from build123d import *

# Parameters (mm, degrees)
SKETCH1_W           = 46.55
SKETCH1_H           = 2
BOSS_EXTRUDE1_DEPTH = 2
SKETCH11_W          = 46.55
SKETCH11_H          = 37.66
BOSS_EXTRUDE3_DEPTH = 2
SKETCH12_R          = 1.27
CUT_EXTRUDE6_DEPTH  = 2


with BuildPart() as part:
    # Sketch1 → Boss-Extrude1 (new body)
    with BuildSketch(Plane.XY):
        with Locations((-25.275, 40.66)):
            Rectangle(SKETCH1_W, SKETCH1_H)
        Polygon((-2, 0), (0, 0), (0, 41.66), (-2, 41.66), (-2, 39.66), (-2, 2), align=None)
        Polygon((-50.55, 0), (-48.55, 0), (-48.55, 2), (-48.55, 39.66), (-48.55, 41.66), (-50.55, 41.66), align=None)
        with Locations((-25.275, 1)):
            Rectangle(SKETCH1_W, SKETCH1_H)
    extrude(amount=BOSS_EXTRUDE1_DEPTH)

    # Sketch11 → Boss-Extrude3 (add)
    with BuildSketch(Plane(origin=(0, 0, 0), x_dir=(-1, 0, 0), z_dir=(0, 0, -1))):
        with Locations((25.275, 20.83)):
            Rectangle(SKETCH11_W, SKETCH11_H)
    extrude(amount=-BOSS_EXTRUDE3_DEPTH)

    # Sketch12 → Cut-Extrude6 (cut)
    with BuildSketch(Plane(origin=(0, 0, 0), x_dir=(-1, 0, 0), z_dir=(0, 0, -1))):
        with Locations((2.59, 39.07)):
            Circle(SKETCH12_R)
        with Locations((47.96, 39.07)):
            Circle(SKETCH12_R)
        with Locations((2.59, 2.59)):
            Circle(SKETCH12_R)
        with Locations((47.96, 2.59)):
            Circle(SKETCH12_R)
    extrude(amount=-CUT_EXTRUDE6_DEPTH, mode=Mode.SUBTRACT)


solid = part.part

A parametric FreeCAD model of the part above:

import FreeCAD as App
import Part
import Sketcher

doc = App.newDocument("Part")
body = doc.addObject("PartDesign::Body", "Body")

# Sketch on XY plane
sketch1 = body.newObject("Sketcher::SketchObject", "Sketch")
sketch1.AttachmentSupport = (doc.getObject("XY_Plane"), [""])
sketch1.MapMode = "FlatFace"
sketch1.addGeometry([
    Part.LineSegment(App.Vector(0, 0, 0), App.Vector(0, 41.66, 0)),  # 0
    Part.LineSegment(App.Vector(0, 41.66, 0), App.Vector(-50.55, 41.66, 0)),  # 1
    Part.LineSegment(App.Vector(-50.55, 41.66, 0), App.Vector(-50.55, 0, 0)),  # 2
    Part.LineSegment(App.Vector(-50.55, 0, 0), App.Vector(0, 0, 0)),  # 3
    Part.LineSegment(App.Vector(-48.55, 39.66, 0), App.Vector(-2, 39.66, 0)),  # 4
    Part.LineSegment(App.Vector(-2, 39.66, 0), App.Vector(-2, 2, 0)),  # 5
    Part.LineSegment(App.Vector(-2, 2, 0), App.Vector(-48.55, 2, 0)),  # 6
    Part.LineSegment(App.Vector(-48.55, 2, 0), App.Vector(-48.55, 39.66, 0)),  # 7
], False)
sketch1.addConstraint([
    Sketcher.Constraint("Coincident", 0, 2, 1, 1),
    Sketcher.Constraint("Coincident", 1, 2, 2, 1),
    Sketcher.Constraint("Coincident", 2, 2, 3, 1),
    Sketcher.Constraint("Coincident", 3, 2, 0, 1),
    Sketcher.Constraint("Coincident", 4, 2, 5, 1),
    Sketcher.Constraint("Coincident", 5, 2, 6, 1),
    Sketcher.Constraint("Coincident", 6, 2, 7, 1),
    Sketcher.Constraint("Coincident", 7, 2, 4, 1),
    Sketcher.Constraint("Vertical", 0),
    Sketcher.Constraint("Horizontal", 1),
    Sketcher.Constraint("Vertical", 2),
    Sketcher.Constraint("Horizontal", 3),
    Sketcher.Constraint("Horizontal", 4),
    Sketcher.Constraint("Vertical", 5),
    Sketcher.Constraint("Horizontal", 6),
    Sketcher.Constraint("Vertical", 7),
    Sketcher.Constraint("Coincident", 3, 2, -1, 1),
    Sketcher.Constraint("DistanceX", 4, 2, -1, 1, 2.0),
    Sketcher.Constraint("DistanceY", -1, 1, 5, 2, 2.0),
    Sketcher.Constraint("DistanceY", 4, 2, 0, 2, 2.0),
    Sketcher.Constraint("DistanceX", 2, 2, 6, 2, 2.0),
    Sketcher.Constraint("DistanceX", 1, 2, 1, 1, 50.55),
    Sketcher.Constraint("DistanceY", 0, 1, 0, 2, 41.66),
])
pad1 = body.newObject("PartDesign::Pad", "Pad")
pad1.Profile = sketch1
pad1.Length = 2

# Sketch on XY plane
sketch2 = body.newObject("Sketcher::SketchObject", "Sketch001")
sketch2.AttachmentSupport = (doc.getObject("XY_Plane"), [""])
sketch2.MapMode = "FlatFace"
sketch2.addGeometry([
    Part.LineSegment(App.Vector(-2, 39.66, 0), App.Vector(-2, 2, 0)),
    Part.LineSegment(App.Vector(-2, 2, 0), App.Vector(-48.55, 2, 0)),
    Part.LineSegment(App.Vector(-48.55, 2, 0), App.Vector(-48.55, 39.66, 0)),
    Part.LineSegment(App.Vector(-48.55, 39.66, 0), App.Vector(-2, 39.66, 0)),
], False)
sketch2.addConstraint([
    Sketcher.Constraint("Coincident", 0, 2, 1, 1),
    Sketcher.Constraint("Coincident", 1, 2, 2, 1),
    Sketcher.Constraint("Coincident", 2, 2, 3, 1),
    Sketcher.Constraint("Coincident", 3, 2, 0, 1),
    Sketcher.Constraint("Vertical", 0),
    Sketcher.Constraint("Horizontal", 1),
    Sketcher.Constraint("Vertical", 2),
    Sketcher.Constraint("Horizontal", 3),
    Sketcher.Constraint("DistanceX", 0, 2, -1, 1, 2.0),
    Sketcher.Constraint("DistanceY", -1, 1, 0, 2, 2.0),
    Sketcher.Constraint("DistanceX", 1, 2, 1, 1, 46.55),
    Sketcher.Constraint("DistanceY", 0, 2, 0, 1, 37.66),
])
pad2 = body.newObject("PartDesign::Pad", "Pad001")
pad2.Profile = sketch2
pad2.Length = 2

# Sketch on XY plane
sketch3 = body.newObject("Sketcher::SketchObject", "Sketch002")
sketch3.AttachmentSupport = (doc.getObject("XY_Plane"), [""])
sketch3.MapMode = "FlatFace"
sketch3.addGeometry([
    Part.Circle(App.Vector(-2.59, 39.07, 0), App.Vector(0, 0, 1), 1.27),
    Part.Circle(App.Vector(-47.96, 39.07, 0), App.Vector(0, 0, 1), 1.27),
    Part.Circle(App.Vector(-2.59, 2.59, 0), App.Vector(0, 0, 1), 1.27),
    Part.Circle(App.Vector(-47.96, 2.59, 0), App.Vector(0, 0, 1), 1.27),
], False)
sketch3.addConstraint([
    Sketcher.Constraint("Equal", 0, 1),
    Sketcher.Constraint("Equal", 1, 2),
    Sketcher.Constraint("Equal", 2, 3),
    Sketcher.Constraint("Horizontal", 0, 3, 1, 3),
    Sketcher.Constraint("Horizontal", 2, 3, 3, 3),
    Sketcher.Constraint("Vertical", 0, 3, 2, 3),
    Sketcher.Constraint("Vertical", 1, 3, 3, 3),
    Sketcher.Constraint("Diameter", 0, 2.54),
    Sketcher.Constraint("DistanceX", 0, 3, -1, 1, 2.59),
    Sketcher.Constraint("DistanceY", -1, 1, 0, 3, 39.07),
    Sketcher.Constraint("DistanceX", 1, 3, -1, 1, 47.96),
    Sketcher.Constraint("DistanceY", -1, 1, 2, 3, 2.59),
])
pocket1 = body.newObject("PartDesign::Pocket", "Pocket")
pocket1.Profile = sketch3
pocket1.Length = 2
pocket1.Reversed = True

doc.recompute()
